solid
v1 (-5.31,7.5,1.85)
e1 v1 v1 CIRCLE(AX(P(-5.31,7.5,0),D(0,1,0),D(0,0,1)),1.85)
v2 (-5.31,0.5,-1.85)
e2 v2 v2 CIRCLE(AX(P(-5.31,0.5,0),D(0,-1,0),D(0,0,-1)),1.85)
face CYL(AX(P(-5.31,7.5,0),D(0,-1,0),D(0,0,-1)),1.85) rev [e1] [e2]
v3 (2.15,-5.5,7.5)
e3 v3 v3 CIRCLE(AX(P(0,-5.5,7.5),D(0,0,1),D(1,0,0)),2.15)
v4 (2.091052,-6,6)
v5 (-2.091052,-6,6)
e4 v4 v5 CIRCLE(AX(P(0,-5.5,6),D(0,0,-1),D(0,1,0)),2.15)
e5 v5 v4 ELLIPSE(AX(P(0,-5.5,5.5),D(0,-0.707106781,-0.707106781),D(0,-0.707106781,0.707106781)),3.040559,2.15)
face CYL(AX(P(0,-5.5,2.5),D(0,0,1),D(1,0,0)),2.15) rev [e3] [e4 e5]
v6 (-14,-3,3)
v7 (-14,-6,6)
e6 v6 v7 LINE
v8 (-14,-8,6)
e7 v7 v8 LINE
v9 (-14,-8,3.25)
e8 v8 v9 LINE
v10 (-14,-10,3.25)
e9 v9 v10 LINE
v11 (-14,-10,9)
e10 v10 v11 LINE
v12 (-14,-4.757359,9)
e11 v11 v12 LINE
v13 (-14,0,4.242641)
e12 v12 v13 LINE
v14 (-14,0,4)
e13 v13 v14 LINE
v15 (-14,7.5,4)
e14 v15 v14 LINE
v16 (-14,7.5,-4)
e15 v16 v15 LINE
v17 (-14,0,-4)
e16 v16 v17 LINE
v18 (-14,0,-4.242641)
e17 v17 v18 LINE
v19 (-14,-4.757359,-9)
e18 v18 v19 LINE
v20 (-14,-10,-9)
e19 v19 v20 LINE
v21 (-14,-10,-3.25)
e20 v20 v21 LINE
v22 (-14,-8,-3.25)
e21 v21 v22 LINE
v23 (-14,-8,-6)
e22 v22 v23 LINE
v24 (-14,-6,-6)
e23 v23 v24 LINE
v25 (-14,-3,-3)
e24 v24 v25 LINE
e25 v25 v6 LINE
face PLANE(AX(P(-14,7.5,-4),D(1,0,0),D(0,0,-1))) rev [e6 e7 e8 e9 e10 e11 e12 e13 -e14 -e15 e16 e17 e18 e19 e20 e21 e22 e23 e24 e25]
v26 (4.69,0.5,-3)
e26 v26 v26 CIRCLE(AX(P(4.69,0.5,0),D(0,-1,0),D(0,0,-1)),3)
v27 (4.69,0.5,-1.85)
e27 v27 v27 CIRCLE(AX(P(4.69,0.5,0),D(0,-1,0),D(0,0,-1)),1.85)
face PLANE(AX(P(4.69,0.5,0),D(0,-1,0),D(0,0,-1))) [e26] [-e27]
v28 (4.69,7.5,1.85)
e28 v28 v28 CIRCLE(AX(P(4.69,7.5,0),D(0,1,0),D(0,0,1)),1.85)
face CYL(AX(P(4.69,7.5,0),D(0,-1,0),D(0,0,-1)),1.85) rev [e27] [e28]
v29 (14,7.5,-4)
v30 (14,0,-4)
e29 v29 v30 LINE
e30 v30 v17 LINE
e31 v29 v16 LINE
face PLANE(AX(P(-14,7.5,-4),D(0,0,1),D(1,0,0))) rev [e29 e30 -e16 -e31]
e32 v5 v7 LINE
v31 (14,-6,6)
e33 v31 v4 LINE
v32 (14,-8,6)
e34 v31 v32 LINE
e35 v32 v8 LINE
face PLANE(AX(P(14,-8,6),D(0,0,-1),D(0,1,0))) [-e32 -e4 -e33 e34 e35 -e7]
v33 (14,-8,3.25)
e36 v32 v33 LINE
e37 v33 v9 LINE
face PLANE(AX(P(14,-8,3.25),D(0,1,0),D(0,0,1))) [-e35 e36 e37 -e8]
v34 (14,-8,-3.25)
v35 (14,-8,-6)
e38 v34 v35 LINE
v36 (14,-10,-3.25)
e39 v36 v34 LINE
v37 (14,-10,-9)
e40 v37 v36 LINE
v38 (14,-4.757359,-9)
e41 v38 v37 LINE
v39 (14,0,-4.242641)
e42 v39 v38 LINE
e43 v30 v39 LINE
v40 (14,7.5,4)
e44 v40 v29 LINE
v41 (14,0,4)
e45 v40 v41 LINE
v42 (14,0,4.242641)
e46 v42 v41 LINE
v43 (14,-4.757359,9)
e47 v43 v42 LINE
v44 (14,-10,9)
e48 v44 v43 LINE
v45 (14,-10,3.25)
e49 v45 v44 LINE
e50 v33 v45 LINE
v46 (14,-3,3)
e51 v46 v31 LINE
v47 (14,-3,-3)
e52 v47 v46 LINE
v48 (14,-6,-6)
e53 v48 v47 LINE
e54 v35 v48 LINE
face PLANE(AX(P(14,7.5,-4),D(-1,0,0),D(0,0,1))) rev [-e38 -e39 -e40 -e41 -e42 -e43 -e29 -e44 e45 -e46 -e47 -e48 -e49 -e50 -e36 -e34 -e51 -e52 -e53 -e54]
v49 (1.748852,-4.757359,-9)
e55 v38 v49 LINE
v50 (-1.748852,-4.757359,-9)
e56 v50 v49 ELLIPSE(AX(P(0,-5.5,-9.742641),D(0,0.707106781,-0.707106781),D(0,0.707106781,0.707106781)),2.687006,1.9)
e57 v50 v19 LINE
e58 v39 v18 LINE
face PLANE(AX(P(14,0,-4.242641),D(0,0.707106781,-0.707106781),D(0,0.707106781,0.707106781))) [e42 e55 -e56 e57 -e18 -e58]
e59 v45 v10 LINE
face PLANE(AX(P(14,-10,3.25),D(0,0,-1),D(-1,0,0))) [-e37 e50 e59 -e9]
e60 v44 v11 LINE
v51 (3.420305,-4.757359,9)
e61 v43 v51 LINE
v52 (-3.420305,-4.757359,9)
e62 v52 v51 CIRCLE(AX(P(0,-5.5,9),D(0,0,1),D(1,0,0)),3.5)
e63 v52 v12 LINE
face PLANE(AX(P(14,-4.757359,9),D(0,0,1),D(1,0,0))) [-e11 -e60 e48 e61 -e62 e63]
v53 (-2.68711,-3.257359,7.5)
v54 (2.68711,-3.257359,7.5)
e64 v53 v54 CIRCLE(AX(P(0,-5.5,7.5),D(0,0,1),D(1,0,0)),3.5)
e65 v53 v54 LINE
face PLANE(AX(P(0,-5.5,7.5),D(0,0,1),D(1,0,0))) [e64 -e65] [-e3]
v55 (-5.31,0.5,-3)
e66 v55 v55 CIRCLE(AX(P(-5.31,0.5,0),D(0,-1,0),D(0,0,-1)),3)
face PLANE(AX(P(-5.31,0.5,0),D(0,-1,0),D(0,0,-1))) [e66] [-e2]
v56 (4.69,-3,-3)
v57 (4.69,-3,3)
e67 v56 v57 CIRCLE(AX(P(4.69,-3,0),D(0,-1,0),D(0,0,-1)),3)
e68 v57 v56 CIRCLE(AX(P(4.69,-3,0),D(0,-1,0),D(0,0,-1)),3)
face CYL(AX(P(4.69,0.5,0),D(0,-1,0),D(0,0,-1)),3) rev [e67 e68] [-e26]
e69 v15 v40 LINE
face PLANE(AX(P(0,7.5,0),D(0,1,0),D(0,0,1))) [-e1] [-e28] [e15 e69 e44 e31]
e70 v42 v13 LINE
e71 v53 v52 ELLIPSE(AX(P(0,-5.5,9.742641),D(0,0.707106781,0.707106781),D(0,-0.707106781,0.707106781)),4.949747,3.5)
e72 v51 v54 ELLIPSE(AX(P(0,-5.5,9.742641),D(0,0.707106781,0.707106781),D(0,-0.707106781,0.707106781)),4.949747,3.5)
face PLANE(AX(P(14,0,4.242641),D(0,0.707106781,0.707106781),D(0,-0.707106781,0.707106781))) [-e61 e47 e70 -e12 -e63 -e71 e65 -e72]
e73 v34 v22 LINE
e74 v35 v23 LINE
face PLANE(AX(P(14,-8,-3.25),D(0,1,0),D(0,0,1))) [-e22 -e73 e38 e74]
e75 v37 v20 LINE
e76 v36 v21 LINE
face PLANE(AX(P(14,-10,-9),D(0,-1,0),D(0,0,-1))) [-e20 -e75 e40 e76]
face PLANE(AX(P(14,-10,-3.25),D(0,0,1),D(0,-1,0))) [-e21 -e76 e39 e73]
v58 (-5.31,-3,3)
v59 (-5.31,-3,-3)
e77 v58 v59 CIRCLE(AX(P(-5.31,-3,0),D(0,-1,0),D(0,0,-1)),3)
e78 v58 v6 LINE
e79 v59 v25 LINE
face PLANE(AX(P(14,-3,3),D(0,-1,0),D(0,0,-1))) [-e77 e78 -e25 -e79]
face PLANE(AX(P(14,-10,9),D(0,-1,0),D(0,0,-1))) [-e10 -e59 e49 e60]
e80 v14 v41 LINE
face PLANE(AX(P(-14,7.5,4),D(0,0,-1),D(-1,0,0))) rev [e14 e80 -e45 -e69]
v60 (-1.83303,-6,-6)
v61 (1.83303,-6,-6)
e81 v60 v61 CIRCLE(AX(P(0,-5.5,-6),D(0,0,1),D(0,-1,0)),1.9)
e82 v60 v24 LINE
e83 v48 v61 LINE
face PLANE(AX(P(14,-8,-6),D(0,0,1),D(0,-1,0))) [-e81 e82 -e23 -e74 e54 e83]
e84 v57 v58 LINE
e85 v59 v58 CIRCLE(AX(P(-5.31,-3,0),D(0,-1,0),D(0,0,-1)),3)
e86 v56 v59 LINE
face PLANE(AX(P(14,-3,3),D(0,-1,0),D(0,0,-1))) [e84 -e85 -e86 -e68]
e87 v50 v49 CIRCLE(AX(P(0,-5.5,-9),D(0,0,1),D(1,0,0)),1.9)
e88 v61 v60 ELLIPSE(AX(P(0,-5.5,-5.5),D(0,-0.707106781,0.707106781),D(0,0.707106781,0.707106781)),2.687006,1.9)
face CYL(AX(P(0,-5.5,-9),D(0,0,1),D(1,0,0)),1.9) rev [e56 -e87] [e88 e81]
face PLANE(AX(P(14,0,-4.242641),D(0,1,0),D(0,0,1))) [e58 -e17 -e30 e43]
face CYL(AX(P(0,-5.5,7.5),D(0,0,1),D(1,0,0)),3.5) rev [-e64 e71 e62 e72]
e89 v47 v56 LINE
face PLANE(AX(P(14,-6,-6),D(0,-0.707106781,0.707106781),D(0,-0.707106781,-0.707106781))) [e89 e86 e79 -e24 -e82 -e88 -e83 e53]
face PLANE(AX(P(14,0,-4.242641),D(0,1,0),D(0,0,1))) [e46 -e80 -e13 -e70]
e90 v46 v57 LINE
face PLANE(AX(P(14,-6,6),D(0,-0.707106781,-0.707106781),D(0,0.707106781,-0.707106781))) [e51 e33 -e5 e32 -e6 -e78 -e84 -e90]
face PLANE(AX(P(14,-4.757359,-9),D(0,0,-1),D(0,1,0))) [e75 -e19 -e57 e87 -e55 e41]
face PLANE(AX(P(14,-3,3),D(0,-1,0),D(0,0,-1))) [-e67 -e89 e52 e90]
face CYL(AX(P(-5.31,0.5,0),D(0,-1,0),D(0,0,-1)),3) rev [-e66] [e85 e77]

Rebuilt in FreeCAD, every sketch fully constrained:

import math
import FreeCAD as App
import Part
import Sketcher
Q = App.Units.Quantity

doc = App.newDocument("Part")
body = doc.addObject("PartDesign::Body", "Body")

sketch1 = body.newObject("Sketcher::SketchObject", "Sketch")
sketch1.AttachmentSupport = (doc.getObject("XZ_Plane"), [""])
sketch1.MapMode = "FlatFace"
sketch1.addGeometry(Part.LineSegment(App.Vector(-14, -4, 0), App.Vector(-14, 4, 0)), False)
sketch1.addGeometry(Part.LineSegment(App.Vector(-14, 4, 0), App.Vector(14, 4, 0)), False)
sketch1.addGeometry(Part.LineSegment(App.Vector(14, 4, 0), App.Vector(14, -4, 0)), False)
sketch1.addGeometry(Part.LineSegment(App.Vector(14, -4, 0), App.Vector(-14, -4, 0)), False)
sketch1.addGeometry(Part.Circle(App.Vector(-5.31, 0, 0), App.Vector(0, 0, 1), 1.85), False)
sketch1.addGeometry(Part.Circle(App.Vector(4.69, 0, 0), App.Vector(0, 0, 1), 1.85), False)
sketch1.addConstraint(Sketcher.Constraint("Coincident", 0, 2, 1, 1))
sketch1.addConstraint(Sketcher.Constraint("Coincident", 1, 2, 2, 1))
sketch1.addConstraint(Sketcher.Constraint("Coincident", 2, 2, 3, 1))
sketch1.addConstraint(Sketcher.Constraint("Coincident", 3, 2, 0, 1))
sketch1.addConstraint(Sketcher.Constraint("Vertical", 0))
sketch1.addConstraint(Sketcher.Constraint("Horizontal", 1))
sketch1.addConstraint(Sketcher.Constraint("Vertical", 2))
sketch1.addConstraint(Sketcher.Constraint("Horizontal", 3))
sketch1.addConstraint(Sketcher.Constraint("Equal", 4, 5))
sketch1.addConstraint(Sketcher.Constraint("Symmetric", 0, 2, 2, 2, -1, 1))
sketch1.addConstraint(Sketcher.Constraint("PointOnObject", 4, 3, -1))
sketch1.addConstraint(Sketcher.Constraint("PointOnObject", 5, 3, -1))
sketch1.addConstraint(Sketcher.Constraint("Diameter", 4, Q("3.7 mm")))
sketch1.addConstraint(Sketcher.Constraint("DistanceX", 1, 1, 1, 2, Q("28 mm")))
sketch1.addConstraint(Sketcher.Constraint("DistanceY", 0, 1, 0, 2, Q("8 mm")))
sketch1.addConstraint(Sketcher.Constraint("DistanceX", 4, 3, 5, 3, Q("10 mm")))
sketch1.addConstraint(Sketcher.Constraint("DistanceX", 4, 3, -1, 1, Q("5.31 mm")))
pad1 = body.newObject("PartDesign::Pad", "Pad")
pad1.Profile = sketch1
pad1.Length = 7.5
pad1.Reversed = True

sketch2 = body.newObject("Sketcher::SketchObject", "Sketch001")
sketch2.AttachmentSupport = (doc.getObject("YZ_Plane"), [""])
sketch2.MapMode = "FlatFace"
sketch2.AttachmentOffset = App.Placement(App.Vector(0, 0, -14), App.Rotation())
sketch2.addGeometry(Part.LineSegment(App.Vector(0, 4.242641, 0), App.Vector(0, -4.242641, 0)), False)
sketch2.addGeometry(Part.LineSegment(App.Vector(0, -4.242641, 0), App.Vector(-4.757359, -9, 0)), False)
sketch2.addGeometry(Part.LineSegment(App.Vector(-4.757359, -9, 0), App.Vector(-10, -9, 0)), False)
sketch2.addGeometry(Part.LineSegment(App.Vector(-10, -9, 0), App.Vector(-10, -3.25, 0)), False)
sketch2.addGeometry(Part.LineSegment(App.Vector(-10, -3.25, 0), App.Vector(-8, -3.25, 0)), False)
sketch2.addGeometry(Part.LineSegment(App.Vector(-8, -3.25, 0), App.Vector(-8, -6, 0)), False)
sketch2.addGeometry(Part.LineSegment(App.Vector(-8, -6, 0), App.Vector(-6, -6, 0)), False)
sketch2.addGeometry(Part.LineSegment(App.Vector(-6, -6, 0), App.Vector(-3, -3, 0)), False)
sketch2.addGeometry(Part.LineSegment(App.Vector(-3, -3, 0), App.Vector(-3, 3, 0)), False)
sketch2.addGeometry(Part.LineSegment(App.Vector(-3, 3, 0), App.Vector(-6, 6, 0)), False)
sketch2.addGeometry(Part.LineSegment(App.Vector(-6, 6, 0), App.Vector(-8, 6, 0)), False)
sketch2.addGeometry(Part.LineSegment(App.Vector(-8, 6, 0), App.Vector(-8, 3.25, 0)), False)
sketch2.addGeometry(Part.LineSegment(App.Vector(-8, 3.25, 0), App.Vector(-10, 3.25, 0)), False)
sketch2.addGeometry(Part.LineSegment(App.Vector(-10, 3.25, 0), App.Vector(-10, 9, 0)), False)
sketch2.addGeometry(Part.LineSegment(App.Vector(-10, 9, 0), App.Vector(-4.757359, 9, 0)), False)
sketch2.addGeometry(Part.LineSegment(App.Vector(-4.757359, 9, 0), App.Vector(0, 4.242641, 0)), False)
sketch2.addConstraint(Sketcher.Constraint("Coincident", 0, 2, 1, 1))
sketch2.addConstraint(Sketcher.Constraint("Coincident", 1, 2, 2, 1))
sketch2.addConstraint(Sketcher.Constraint("Coincident", 2, 2, 3, 1))
sketch2.addConstraint(Sketcher.Constraint("Coincident", 3, 2, 4, 1))
sketch2.addConstraint(Sketcher.Constraint("Coincident", 4, 2, 5, 1))
sketch2.addConstraint(Sketcher.Constraint("Coincident", 5, 2, 6, 1))
sketch2.addConstraint(Sketcher.Constraint("Coincident", 6, 2, 7, 1))
sketch2.addConstraint(Sketcher.Constraint("Coincident", 7, 2, 8, 1))
sketch2.addConstraint(Sketcher.Constraint("Coincident", 8, 2, 9, 1))
sketch2.addConstraint(Sketcher.Constraint("Coincident", 9, 2, 10, 1))
sketch2.addConstraint(Sketcher.Constraint("Coincident", 10, 2, 11, 1))
sketch2.addConstraint(Sketcher.Constraint("Coincident", 11, 2, 12, 1))
sketch2.addConstraint(Sketcher.Constraint("Coincident", 12, 2, 13, 1))
sketch2.addConstraint(Sketcher.Constraint("Coincident", 13, 2, 14, 1))
sketch2.addConstraint(Sketcher.Constraint("Coincident", 14, 2, 15, 1))
sketch2.addConstraint(Sketcher.Constraint("Coincident", 15, 2, 0, 1))
sketch2.addConstraint(Sketcher.Constraint("Vertical", 0))
sketch2.addConstraint(Sketcher.Constraint("Horizontal", 2))
sketch2.addConstraint(Sketcher.Constraint("Vertical", 3))
sketch2.addConstraint(Sketcher.Constraint("Horizontal", 4))
sketch2.addConstraint(Sketcher.Constraint("Vertical", 5))
sketch2.addConstraint(Sketcher.Constraint("Horizontal", 6))
sketch2.addConstraint(Sketcher.Constraint("Vertical", 8))
sketch2.addConstraint(Sketcher.Constraint("Horizontal", 10))
sketch2.addConstraint(Sketcher.Constraint("Vertical", 11))
sketch2.addConstraint(Sketcher.Constraint("Horizontal", 12))
sketch2.addConstraint(Sketcher.Constraint("Vertical", 13))
sketch2.addConstraint(Sketcher.Constraint("Horizontal", 14))
sketch2.addConstraint(Sketcher.Constraint("Symmetric", 0, 2, 15, 2, -1, 1))
sketch2.addConstraint(Sketcher.Constraint("Symmetric", 6, 2, 9, 2, -1))
sketch2.addConstraint(Sketcher.Constraint("Symmetric", 4, 2, 11, 2, -1))
sketch2.addConstraint(Sketcher.Constraint("Symmetric", 2, 2, 13, 2, -1))
sketch2.addConstraint(Sketcher.Constraint("Parallel", 1, 7))
sketch2.addConstraint(Sketcher.Constraint("Perpendicular", 7, 9))
sketch2.addConstraint(Sketcher.Constraint("Parallel", 9, 15))
sketch2.addConstraint(Sketcher.Constraint("Vertical", 1, 2, 14, 2))
sketch2.addConstraint(Sketcher.Constraint("Equal", 4, 6))
sketch2.addConstraint(Sketcher.Constraint("DistanceX", 4, 1, 4, 2, Q("2 mm")))
sketch2.addConstraint(Sketcher.Constraint("DistanceY", 8, 1, 8, 2, Q("6 mm")))
sketch2.addConstraint(Sketcher.Constraint("DistanceY", 1, 2, -1, 1, Q("9 mm")))
sketch2.addConstraint(Sketcher.Constraint("DistanceX", 2, 2, -1, 1, Q("10 mm")))
sketch2.addConstraint(Sketcher.Constraint("DistanceY", 5, 2, -1, 1, Q("6 mm")))
sketch2.addConstraint(Sketcher.Constraint("DistanceY", 3, 1, 3, 2, Q("5.75 mm")))
sketch2.addConstraint(Sketcher.Constraint("DistanceX", 2, 2, 2, 1, Q("5.242641 mm")))
pad2 = body.newObject("PartDesign::Pad", "Pad001")
pad2.Profile = sketch2
pad2.Length = 28

sketch3 = body.newObject("Sketcher::SketchObject", "Sketch002")
sketch3.AttachmentSupport = (doc.getObject("XZ_Plane"), [""])
sketch3.MapMode = "FlatFace"
sketch3.addGeometry(Part.Circle(App.Vector(4.69, 0, 0), App.Vector(0, 0, 1), 1.85), False)
sketch3.addGeometry(Part.Circle(App.Vector(-5.31, 0, 0), App.Vector(0, 0, 1), 1.85), False)
sketch3.addConstraint(Sketcher.Constraint("Equal", 0, 1))
sketch3.addConstraint(Sketcher.Constraint("PointOnObject", 0, 3, -1))
sketch3.addConstraint(Sketcher.Constraint("PointOnObject", 1, 3, -1))
sketch3.addConstraint(Sketcher.Constraint("Diameter", 0, Q("3.7 mm")))
sketch3.addConstraint(Sketcher.Constraint("DistanceX", 1, 3, 0, 3, Q("10 mm")))
sketch3.addConstraint(Sketcher.Constraint("DistanceX", -1, 1, 0, 3, Q("4.69 mm")))
pocket1 = body.newObject("PartDesign::Pocket", "Pocket")
pocket1.Profile = sketch3
pocket1.Type = "ThroughAll"
pocket1.Reversed = True

sketch4 = body.newObject("Sketcher::SketchObject", "Sketch003")
sketch4.AttachmentSupport = (doc.getObject("XZ_Plane"), [""])
sketch4.MapMode = "FlatFace"
sketch4.AttachmentOffset = App.Placement(App.Vector(0, 0, 3), App.Rotation())
sketch4.addGeometry(Part.Circle(App.Vector(-5.31, 0, 0), App.Vector(0, 0, 1), 3), False)
sketch4.addGeometry(Part.Circle(App.Vector(4.69, 0, 0), App.Vector(0, 0, 1), 3), False)
sketch4.addConstraint(Sketcher.Constraint("Equal", 0, 1))
sketch4.addConstraint(Sketcher.Constraint("PointOnObject", 0, 3, -1))
sketch4.addConstraint(Sketcher.Constraint("PointOnObject", 1, 3, -1))
sketch4.addConstraint(Sketcher.Constraint("Diameter", 0, Q("6 mm")))
sketch4.addConstraint(Sketcher.Constraint("DistanceX", 0, 3, 1, 3, Q("10 mm")))
sketch4.addConstraint(Sketcher.Constraint("DistanceX", 0, 3, -1, 1, Q("5.31 mm")))
pocket2 = body.newObject("PartDesign::Pocket", "Pocket001")
pocket2.Profile = sketch4
pocket2.Length = 3.5

sketch5 = body.newObject("Sketcher::SketchObject", "Sketch004")
sketch5.AttachmentSupport = (doc.getObject("XY_Plane"), [""])
sketch5.MapMode = "FlatFace"
sketch5.AttachmentOffset = App.Placement(App.Vector(0, 0, 9), App.Rotation())
sketch5.addGeometry(Part.ArcOfCircle(Part.Circle(App.Vector(0, -5.5, 0), App.Vector(0, 0, 1), 1.9), math.radians(156.991759), math.radians(360)), False)
sketch5.addGeometry(Part.ArcOfCircle(Part.Circle(App.Vector(0, -5.5, 0), App.Vector(0, 0, 1), 1.9), math.radians(0), math.radians(23.008241)), False)
sketch5.addGeometry(Part.ArcOfCircle(Part.Circle(App.Vector(0, -5.5, 0), App.Vector(0, 0, 1), 1.9), math.radians(23.008241), math.radians(156.991759)), False)
sketch5.addConstraint(Sketcher.Constraint("Tangent", 0, 2, 1, 1))
sketch5.addConstraint(Sketcher.Constraint("Tangent", 1, 2, 2, 1))
sketch5.addConstraint(Sketcher.Constraint("Tangent", 2, 2, 0, 1))
sketch5.addConstraint(Sketcher.Constraint("Symmetric", 1, 2, 2, 2, -2))
sketch5.addConstraint(Sketcher.Constraint("Horizontal", 2, 3, 0, 2))
sketch5.addConstraint(Sketcher.Constraint("Radius", 0, Q("1.9 mm")))
sketch5.addConstraint(Sketcher.Constraint("DistanceY", 0, 3, -1, 1, Q("5.5 mm")))
sketch5.addConstraint(Sketcher.Constraint("DistanceY", 1, 2, -1, 1, Q("4.757359 mm")))
pocket3 = body.newObject("PartDesign::Pocket", "Pocket002")
pocket3.Profile = sketch5
pocket3.Type = "ThroughAll"

sketch6 = body.newObject("Sketcher::SketchObject", "Sketch005")
sketch6.AttachmentSupport = (doc.getObject("XY_Plane"), [""])
sketch6.MapMode = "FlatFace"
sketch6.AttachmentOffset = App.Placement(App.Vector(0, 0, 9), App.Rotation())
sketch6.addGeometry(Part.Circle(App.Vector(0, -5.5, 0), App.Vector(0, 0, 1), 3.5), False)
sketch6.addConstraint(Sketcher.Constraint("PointOnObject", 0, 3, -2))
sketch6.addConstraint(Sketcher.Constraint("Diameter", 0, Q("7 mm")))
sketch6.addConstraint(Sketcher.Constraint("DistanceY", 0, 3, -1, 1, Q("5.5 mm")))
pocket4 = body.newObject("PartDesign::Pocket", "Pocket003")
pocket4.Profile = sketch6
pocket4.Length = 1.5

sketch7 = body.newObject("Sketcher::SketchObject", "Sketch006")
sketch7.AttachmentSupport = (doc.getObject("XY_Plane"), [""])
sketch7.MapMode = "FlatFace"
sketch7.AttachmentOffset = App.Placement(App.Vector(0, 0, 7.5), App.Rotation())
sketch7.addGeometry(Part.Circle(App.Vector(0, -5.5, 0), App.Vector(0, 0, 1), 2.15), False)
sketch7.addConstraint(Sketcher.Constraint("PointOnObject", 0, 3, -2))
sketch7.addConstraint(Sketcher.Constraint("Diameter", 0, Q("4.3 mm")))
sketch7.addConstraint(Sketcher.Constraint("DistanceY", 0, 3, -1, 1, Q("5.5 mm")))
pocket5 = body.newObject("PartDesign::Pocket", "Pocket004")
pocket5.Profile = sketch7
pocket5.Length = 5

doc.recompute()
